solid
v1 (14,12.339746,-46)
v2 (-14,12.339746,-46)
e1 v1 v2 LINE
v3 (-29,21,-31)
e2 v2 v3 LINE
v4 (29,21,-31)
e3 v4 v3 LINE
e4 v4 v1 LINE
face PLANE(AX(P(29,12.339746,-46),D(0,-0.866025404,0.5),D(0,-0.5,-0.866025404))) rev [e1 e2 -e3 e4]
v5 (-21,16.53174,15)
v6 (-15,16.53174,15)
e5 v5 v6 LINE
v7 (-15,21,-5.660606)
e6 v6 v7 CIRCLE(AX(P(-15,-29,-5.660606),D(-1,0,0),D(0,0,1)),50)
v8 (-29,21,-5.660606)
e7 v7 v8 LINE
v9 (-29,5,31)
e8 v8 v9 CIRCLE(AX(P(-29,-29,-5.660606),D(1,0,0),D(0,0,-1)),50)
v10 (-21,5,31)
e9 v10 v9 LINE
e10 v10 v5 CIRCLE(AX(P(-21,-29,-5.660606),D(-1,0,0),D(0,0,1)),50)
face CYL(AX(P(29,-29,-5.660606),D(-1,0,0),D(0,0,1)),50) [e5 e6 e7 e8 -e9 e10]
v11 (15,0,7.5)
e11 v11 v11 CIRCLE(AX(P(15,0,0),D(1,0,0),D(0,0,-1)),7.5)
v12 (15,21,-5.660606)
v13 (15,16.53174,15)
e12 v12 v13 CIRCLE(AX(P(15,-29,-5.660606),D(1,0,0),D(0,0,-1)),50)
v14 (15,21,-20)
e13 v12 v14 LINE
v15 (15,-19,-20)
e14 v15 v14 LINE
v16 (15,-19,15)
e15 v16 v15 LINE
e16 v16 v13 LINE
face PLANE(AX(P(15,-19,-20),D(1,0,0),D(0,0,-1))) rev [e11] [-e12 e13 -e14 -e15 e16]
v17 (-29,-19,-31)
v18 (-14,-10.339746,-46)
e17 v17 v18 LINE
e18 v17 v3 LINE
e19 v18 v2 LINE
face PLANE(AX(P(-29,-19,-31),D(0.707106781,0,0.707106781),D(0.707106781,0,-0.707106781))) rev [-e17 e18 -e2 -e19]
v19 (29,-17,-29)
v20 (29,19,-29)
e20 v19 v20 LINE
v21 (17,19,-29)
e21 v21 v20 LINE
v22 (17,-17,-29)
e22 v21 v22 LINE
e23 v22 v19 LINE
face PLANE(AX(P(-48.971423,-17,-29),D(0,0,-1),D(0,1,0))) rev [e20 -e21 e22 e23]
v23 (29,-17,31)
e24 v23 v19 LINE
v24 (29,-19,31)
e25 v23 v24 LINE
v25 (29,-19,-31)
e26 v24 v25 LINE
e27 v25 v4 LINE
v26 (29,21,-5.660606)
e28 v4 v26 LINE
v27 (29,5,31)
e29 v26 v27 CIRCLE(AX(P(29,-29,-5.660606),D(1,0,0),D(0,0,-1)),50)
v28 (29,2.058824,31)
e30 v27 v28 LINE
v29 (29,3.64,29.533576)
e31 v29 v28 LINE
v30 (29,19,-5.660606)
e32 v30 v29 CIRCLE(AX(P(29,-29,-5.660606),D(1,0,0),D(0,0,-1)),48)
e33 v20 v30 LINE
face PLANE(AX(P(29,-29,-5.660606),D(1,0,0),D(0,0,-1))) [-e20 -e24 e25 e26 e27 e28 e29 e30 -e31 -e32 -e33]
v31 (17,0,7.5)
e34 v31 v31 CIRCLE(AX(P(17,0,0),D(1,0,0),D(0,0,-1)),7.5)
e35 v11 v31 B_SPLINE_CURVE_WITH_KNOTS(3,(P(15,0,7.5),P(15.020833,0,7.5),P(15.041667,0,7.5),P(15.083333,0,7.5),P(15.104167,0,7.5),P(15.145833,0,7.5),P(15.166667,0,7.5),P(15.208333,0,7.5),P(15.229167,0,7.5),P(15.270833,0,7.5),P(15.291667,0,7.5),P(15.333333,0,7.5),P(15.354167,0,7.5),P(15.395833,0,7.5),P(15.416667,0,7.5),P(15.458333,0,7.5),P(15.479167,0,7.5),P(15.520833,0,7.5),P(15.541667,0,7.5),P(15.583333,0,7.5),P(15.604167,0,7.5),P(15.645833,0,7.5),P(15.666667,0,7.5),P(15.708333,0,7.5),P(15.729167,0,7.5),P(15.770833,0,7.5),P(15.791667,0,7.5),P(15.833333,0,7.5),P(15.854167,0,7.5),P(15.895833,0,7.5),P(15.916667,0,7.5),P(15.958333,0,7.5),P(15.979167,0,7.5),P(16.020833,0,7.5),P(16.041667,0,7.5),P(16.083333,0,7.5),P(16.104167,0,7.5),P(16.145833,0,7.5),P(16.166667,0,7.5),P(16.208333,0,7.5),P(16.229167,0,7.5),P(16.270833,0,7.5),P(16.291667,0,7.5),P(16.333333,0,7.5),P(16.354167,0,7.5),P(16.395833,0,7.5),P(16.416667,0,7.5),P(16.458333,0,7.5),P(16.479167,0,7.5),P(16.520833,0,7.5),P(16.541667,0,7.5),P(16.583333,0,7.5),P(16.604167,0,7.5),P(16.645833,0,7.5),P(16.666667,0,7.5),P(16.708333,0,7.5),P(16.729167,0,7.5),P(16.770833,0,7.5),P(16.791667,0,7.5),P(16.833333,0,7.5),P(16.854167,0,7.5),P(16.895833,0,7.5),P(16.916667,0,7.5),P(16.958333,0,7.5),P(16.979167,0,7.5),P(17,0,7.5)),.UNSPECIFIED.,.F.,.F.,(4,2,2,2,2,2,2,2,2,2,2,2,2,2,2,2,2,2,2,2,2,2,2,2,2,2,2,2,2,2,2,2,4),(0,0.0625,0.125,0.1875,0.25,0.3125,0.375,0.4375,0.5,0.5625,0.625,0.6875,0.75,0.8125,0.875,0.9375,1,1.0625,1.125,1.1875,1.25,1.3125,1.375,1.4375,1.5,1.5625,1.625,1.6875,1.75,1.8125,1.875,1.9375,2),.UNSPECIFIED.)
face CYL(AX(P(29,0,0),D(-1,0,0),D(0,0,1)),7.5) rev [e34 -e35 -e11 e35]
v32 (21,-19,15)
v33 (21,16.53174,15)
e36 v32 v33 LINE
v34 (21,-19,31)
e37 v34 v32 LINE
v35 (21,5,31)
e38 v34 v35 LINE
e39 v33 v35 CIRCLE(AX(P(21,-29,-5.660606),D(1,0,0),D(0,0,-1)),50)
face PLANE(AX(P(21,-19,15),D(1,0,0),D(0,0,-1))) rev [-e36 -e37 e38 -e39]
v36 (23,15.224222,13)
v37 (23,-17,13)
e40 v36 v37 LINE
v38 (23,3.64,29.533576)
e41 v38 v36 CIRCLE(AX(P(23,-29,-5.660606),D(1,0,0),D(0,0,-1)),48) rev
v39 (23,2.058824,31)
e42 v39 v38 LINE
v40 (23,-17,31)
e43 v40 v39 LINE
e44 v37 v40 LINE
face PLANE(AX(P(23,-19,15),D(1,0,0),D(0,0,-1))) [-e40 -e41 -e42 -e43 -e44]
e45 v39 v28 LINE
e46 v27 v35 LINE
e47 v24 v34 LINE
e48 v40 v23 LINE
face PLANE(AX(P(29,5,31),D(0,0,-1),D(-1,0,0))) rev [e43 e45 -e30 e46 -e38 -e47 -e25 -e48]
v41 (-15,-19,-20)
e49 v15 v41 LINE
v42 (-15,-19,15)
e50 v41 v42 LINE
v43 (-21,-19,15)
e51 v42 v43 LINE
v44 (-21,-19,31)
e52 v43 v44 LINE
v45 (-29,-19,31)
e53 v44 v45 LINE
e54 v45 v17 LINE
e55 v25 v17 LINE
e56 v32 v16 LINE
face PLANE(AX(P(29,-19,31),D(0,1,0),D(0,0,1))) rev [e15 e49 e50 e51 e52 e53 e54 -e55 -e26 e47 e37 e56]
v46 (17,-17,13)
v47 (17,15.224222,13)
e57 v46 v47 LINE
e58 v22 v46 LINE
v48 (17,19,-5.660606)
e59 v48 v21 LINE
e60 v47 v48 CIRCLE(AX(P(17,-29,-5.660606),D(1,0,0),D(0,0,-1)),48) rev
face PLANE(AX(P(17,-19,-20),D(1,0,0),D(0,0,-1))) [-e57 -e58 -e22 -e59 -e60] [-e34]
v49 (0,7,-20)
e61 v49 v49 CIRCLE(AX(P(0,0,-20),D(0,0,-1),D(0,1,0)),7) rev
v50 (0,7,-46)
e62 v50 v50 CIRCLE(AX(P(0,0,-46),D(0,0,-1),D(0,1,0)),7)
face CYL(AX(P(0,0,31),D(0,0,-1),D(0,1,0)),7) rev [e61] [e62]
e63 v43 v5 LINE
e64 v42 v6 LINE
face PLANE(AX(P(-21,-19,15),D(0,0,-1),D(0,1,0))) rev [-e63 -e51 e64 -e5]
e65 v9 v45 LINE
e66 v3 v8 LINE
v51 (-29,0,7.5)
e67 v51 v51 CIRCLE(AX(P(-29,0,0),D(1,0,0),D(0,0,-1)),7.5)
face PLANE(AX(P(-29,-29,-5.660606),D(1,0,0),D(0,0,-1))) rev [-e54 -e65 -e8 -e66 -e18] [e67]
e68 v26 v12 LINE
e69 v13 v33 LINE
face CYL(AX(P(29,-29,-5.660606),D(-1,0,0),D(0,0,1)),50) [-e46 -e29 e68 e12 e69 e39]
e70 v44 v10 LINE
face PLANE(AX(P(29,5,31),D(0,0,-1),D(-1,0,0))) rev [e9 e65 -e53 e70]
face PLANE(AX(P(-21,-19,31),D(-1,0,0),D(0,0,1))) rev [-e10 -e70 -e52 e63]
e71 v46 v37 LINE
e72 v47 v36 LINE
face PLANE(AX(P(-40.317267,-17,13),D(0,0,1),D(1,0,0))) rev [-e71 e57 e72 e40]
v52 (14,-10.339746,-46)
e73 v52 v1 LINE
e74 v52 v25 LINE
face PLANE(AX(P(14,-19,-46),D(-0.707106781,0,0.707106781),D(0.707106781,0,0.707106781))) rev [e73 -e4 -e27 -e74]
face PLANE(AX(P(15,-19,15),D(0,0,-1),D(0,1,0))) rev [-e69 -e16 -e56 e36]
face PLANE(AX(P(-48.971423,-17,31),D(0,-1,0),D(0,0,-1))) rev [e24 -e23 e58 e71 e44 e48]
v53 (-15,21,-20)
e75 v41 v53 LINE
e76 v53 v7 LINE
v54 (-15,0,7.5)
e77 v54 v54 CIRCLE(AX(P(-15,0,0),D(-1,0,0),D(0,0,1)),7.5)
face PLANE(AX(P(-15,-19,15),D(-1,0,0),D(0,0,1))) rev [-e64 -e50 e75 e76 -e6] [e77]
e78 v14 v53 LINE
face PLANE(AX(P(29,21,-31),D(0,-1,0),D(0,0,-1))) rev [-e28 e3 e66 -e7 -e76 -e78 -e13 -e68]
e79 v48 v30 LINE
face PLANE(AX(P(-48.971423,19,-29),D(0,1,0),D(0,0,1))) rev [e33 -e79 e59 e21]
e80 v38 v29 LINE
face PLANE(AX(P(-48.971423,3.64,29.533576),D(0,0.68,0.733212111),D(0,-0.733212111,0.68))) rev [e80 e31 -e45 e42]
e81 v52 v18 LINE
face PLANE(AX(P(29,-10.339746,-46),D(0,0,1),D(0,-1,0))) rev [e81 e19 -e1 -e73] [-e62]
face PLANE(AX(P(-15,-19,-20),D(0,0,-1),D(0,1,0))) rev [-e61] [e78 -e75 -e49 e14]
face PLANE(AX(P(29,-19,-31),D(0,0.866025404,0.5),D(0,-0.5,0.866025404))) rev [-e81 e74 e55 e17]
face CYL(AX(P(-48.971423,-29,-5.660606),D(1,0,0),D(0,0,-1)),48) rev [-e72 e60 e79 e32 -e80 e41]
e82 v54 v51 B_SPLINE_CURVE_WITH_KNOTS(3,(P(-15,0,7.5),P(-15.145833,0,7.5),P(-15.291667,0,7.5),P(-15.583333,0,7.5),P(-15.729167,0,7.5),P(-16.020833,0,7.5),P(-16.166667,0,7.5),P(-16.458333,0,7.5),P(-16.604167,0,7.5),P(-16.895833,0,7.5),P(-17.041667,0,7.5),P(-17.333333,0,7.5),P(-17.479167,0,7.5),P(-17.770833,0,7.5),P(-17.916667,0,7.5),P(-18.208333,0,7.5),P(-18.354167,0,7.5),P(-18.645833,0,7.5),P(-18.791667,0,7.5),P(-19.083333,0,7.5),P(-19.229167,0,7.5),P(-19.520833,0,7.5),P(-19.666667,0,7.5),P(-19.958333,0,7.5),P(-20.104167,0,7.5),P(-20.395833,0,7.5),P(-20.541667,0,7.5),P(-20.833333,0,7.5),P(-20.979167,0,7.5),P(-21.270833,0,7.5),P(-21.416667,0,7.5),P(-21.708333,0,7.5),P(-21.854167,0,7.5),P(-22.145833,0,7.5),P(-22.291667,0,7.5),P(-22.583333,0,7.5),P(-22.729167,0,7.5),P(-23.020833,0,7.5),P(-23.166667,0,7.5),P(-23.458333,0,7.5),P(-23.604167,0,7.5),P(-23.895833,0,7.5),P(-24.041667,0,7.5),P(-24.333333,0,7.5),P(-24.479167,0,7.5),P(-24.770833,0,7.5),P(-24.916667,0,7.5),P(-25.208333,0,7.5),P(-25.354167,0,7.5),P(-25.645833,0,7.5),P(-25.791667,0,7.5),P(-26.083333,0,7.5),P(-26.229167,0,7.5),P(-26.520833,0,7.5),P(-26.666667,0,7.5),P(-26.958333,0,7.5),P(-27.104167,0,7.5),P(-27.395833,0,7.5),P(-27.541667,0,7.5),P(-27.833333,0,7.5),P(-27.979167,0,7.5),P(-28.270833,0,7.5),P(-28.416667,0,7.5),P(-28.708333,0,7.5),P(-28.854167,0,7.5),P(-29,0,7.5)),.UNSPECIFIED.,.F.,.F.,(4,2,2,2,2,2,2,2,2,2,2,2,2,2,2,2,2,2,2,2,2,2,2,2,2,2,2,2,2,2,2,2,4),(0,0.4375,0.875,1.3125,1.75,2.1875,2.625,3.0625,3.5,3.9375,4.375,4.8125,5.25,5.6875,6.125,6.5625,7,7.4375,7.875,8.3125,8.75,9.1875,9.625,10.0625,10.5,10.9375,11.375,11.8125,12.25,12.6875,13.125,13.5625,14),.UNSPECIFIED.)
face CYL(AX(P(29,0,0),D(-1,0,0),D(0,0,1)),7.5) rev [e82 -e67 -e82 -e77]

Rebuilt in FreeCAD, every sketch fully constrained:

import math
import FreeCAD as App
import Part
import Sketcher
Q = App.Units.Quantity


def add_polygon(sketch, points):
    """Adds a closed chain of lines whose ends are joined by coincident constraints."""
    first, n = sketch.GeometryCount, len(points)
    for a, b in zip(points, points[1:] + points[:1]):
        sketch.addGeometry(Part.LineSegment(App.Vector(*a, 0), App.Vector(*b, 0)), False)
    for i in range(n):
        sketch.addConstraint(Sketcher.Constraint("Coincident", first + i, 2, first + (i + 1) % n, 1))

doc = App.newDocument("Part")
body = doc.addObject("PartDesign::Body", "Body")

sketch1 = doc.addObject("Sketcher::SketchObject", "Sketch")
body.addObject(sketch1)
sketch1.AttachmentSupport = (doc.YZ_Plane, [""])
sketch1.MapMode = "FlatFace"
sketch1.addGeometry([
    Part.LineSegment(App.Vector(5, 31, 0), App.Vector(-19, 31, 0)),
    Part.LineSegment(App.Vector(-19, 31, 0), App.Vector(-19, -31, 0)),
    Part.LineSegment(App.Vector(-19, -31, 0), App.Vector(-10.339746, -46, 0)),
    Part.LineSegment(App.Vector(-10.339746, -46, 0), App.Vector(12.339746, -46, 0)),
    Part.LineSegment(App.Vector(12.339746, -46, 0), App.Vector(21, -31, 0)),
    Part.LineSegment(App.Vector(21, -31, 0), App.Vector(21, -5.660606, 0)),
    Part.ArcOfCircle(Part.Circle(App.Vector(-29, -5.660606, 0), App.Vector(0, 0, 1), 50), math.radians(0), math.radians(47.156357)),
    Part.Circle(App.Vector(0, 0, 0), App.Vector(0, 0, 1), 7.5),
], False)
sketch1.addConstraint([
    Sketcher.Constraint("Coincident", 0, 2, 1, 1),
    Sketcher.Constraint("Coincident", 1, 2, 2, 1),
    Sketcher.Constraint("Coincident", 2, 2, 3, 1),
    Sketcher.Constraint("Coincident", 3, 2, 4, 1),
    Sketcher.Constraint("Coincident", 4, 2, 5, 1),
    Sketcher.Constraint("Tangent", 5, 2, 6, 1),
    Sketcher.Constraint("Coincident", 6, 2, 0, 1),
    Sketcher.Constraint("Horizontal", 0),
    Sketcher.Constraint("Vertical", 1),
    Sketcher.Constraint("Horizontal", 3),
    Sketcher.Constraint("Vertical", 5),
    Sketcher.Constraint("Coincident", 7, 3, -1, 1),
    Sketcher.Constraint("Horizontal", 1, 2, 4, 2),
    Sketcher.Constraint("Equal", 2, 4),
    Sketcher.Constraint("Diameter", 7, Q("15 mm")),
    Sketcher.Constraint("Radius", 6, Q("50 mm")),
    Sketcher.Constraint("DistanceX", 0, 2, 0, 1, Q("24 mm")),
    Sketcher.Constraint("DistanceY", 1, 2, 1, 1, Q("62 mm")),
    Sketcher.Constraint("Angle", 2, Q("-60 deg")),
    Sketcher.Constraint("DistanceX", 6, 3, -1, 1, Q("29 mm")),
    Sketcher.Constraint("DistanceX", 0, 2, -1, 1, Q("19 mm")),
    Sketcher.Constraint("DistanceY", -1, 1, 0, 2, Q("31 mm")),
    Sketcher.Constraint("DistanceY", 2, 2, -1, 1, Q("46 mm")),
])
pad1 = doc.addObject("PartDesign::Pad", "Pad")
body.addObject(pad1)
pad1.Profile = sketch1
pad1.Length = 58
pad1.Midplane = True

sketch2 = doc.addObject("Sketcher::SketchObject", "Sketch001")
body.addObject(sketch2)
sketch2.AttachmentSupport = (doc.XZ_Plane, [""])
sketch2.MapMode = "FlatFace"
sketch2.AttachmentOffset = App.Placement(App.Vector(0, 0, -21), App.Rotation())
add_polygon(sketch2, [(-29, -31), (-14, -46), (-29, -46)])
add_polygon(sketch2, [(29, -31), (29, -46), (14, -46)])
sketch2.addConstraint([
    Sketcher.Constraint("Horizontal", 1),
    Sketcher.Constraint("Vertical", 2),
    Sketcher.Constraint("Vertical", 3),
    Sketcher.Constraint("Horizontal", 4),
    Sketcher.Constraint("Symmetric", 1, 2, 3, 2, -2),
    Sketcher.Constraint("Perpendicular", 0, 5),
    Sketcher.Constraint("Horizontal", 2, 2, 5, 2),
    Sketcher.Constraint("Equal", 1, 4),
    Sketcher.Constraint("DistanceX", 1, 2, 1, 1, Q("15 mm")),
    Sketcher.Constraint("DistanceX", 0, 2, -1, 1, Q("14 mm")),
    Sketcher.Constraint("DistanceY", 0, 2, -1, 1, Q("46 mm")),
])
pocket1 = doc.addObject("PartDesign::Pocket", "Pocket")
body.addObject(pocket1)
pocket1.Profile = sketch2
pocket1.Type = "ThroughAll"
pocket1.Reversed = True

sketch3 = doc.addObject("Sketcher::SketchObject", "Sketch002")
body.addObject(sketch3)
sketch3.AttachmentSupport = (doc.XY_Plane, [""])
sketch3.MapMode = "FlatFace"
sketch3.AttachmentOffset = App.Placement(App.Vector(0, 0, -46), App.Rotation())
sketch3.addGeometry(Part.Circle(App.Vector(0, 0, 0), App.Vector(0, 0, 1), 7), False)
sketch3.addConstraint([
    Sketcher.Constraint("Coincident", 0, 3, -1, 1),
    Sketcher.Constraint("Diameter", 0, Q("14 mm")),
])
pocket2 = doc.addObject("PartDesign::Pocket", "Pocket001")
body.addObject(pocket2)
pocket2.Profile = sketch3
pocket2.Type = "ThroughAll"
pocket2.Reversed = True

sketch4 = doc.addObject("Sketcher::SketchObject", "Sketch003")
body.addObject(sketch4)
sketch4.AttachmentSupport = (doc.XZ_Plane, [""])
sketch4.MapMode = "FlatFace"
sketch4.AttachmentOffset = App.Placement(App.Vector(0, 0, -21), App.Rotation())
add_polygon(sketch4, [(-21, 31), (21, 31), (21, 15), (15, 15), (15, -20), (-15, -20), (-15, 15), (-21, 15)])
sketch4.addConstraint([
    Sketcher.Constraint("Horizontal", 0),
    Sketcher.Constraint("Vertical", 1),
    Sketcher.Constraint("Horizontal", 2),
    Sketcher.Constraint("Vertical", 3),
    Sketcher.Constraint("Horizontal", 4),
    Sketcher.Constraint("Vertical", 5),
    Sketcher.Constraint("Horizontal", 6),
    Sketcher.Constraint("Vertical", 7),
    Sketcher.Constraint("Symmetric", 2, 2, 5, 2, -2),
    Sketcher.Constraint("Equal", 2, 6),
    Sketcher.Constraint("DistanceX", 0, 1, 0, 2, Q("42 mm")),
    Sketcher.Constraint("DistanceX", 2, 2, 2, 1, Q("6 mm")),
    Sketcher.Constraint("DistanceY", 1, 2, 1, 1, Q("16 mm")),
    Sketcher.Constraint("DistanceY", 3, 2, 3, 1, Q("35 mm")),
    Sketcher.Constraint("DistanceY", -1, 1, 0, 2, Q("31 mm")),
])
pocket3 = doc.addObject("PartDesign::Pocket", "Pocket002")
body.addObject(pocket3)
pocket3.Profile = sketch4
pocket3.Type = "ThroughAll"
pocket3.Reversed = True

sketch5 = doc.addObject("Sketcher::SketchObject", "Sketch004")
body.addObject(sketch5)
sketch5.AttachmentSupport = (doc.YZ_Plane, [""])
sketch5.MapMode = "FlatFace"
sketch5.AttachmentOffset = App.Placement(App.Vector(0, 0, 29), App.Rotation())
sketch5.addGeometry([
    Part.LineSegment(App.Vector(2.058824, 31, 0), App.Vector(-17, 31, 0)),
    Part.LineSegment(App.Vector(-17, 31, 0), App.Vector(-17, -29, 0)),
    Part.LineSegment(App.Vector(-17, -29, 0), App.Vector(19, -29, 0)),
    Part.LineSegment(App.Vector(19, -29, 0), App.Vector(19, -5.660606, 0)),
    Part.ArcOfCircle(Part.Circle(App.Vector(-29, -5.660606, 0), App.Vector(0, 0, 1), 48), math.radians(0), math.radians(47.156357)),
    Part.LineSegment(App.Vector(3.64, 29.533576, 0), App.Vector(2.058824, 31, 0)),
], False)
sketch5.addConstraint([
    Sketcher.Constraint("Coincident", 0, 2, 1, 1),
    Sketcher.Constraint("Coincident", 1, 2, 2, 1),
    Sketcher.Constraint("Coincident", 2, 2, 3, 1),
    Sketcher.Constraint("Tangent", 3, 2, 4, 1),
    Sketcher.Constraint("Tangent", 4, 2, 5, 1),
    Sketcher.Constraint("Coincident", 5, 2, 0, 1),
    Sketcher.Constraint("Horizontal", 0),
    Sketcher.Constraint("Vertical", 1),
    Sketcher.Constraint("Horizontal", 2),
    Sketcher.Constraint("Vertical", 3),
    Sketcher.Constraint("Radius", 4, Q("48 mm")),
    Sketcher.Constraint("DistanceX", 2, 1, 2, 2, Q("36 mm")),
    Sketcher.Constraint("DistanceY", 1, 2, 1, 1, Q("60 mm")),
    Sketcher.Constraint("DistanceX", 4, 3, -1, 1, Q("29 mm")),
    Sketcher.Constraint("DistanceY", -1, 1, 0, 2, Q("31 mm")),
    Sketcher.Constraint("DistanceX", -1, 1, 4, 2, Q("3.64 mm")),
    Sketcher.Constraint("DistanceX", 0, 2, 0, 1, Q("19.058824 mm")),
])
pocket4 = doc.addObject("PartDesign::Pocket", "Pocket003")
body.addObject(pocket4)
pocket4.Profile = sketch5
pocket4.Length = 6

sketch6 = doc.addObject("Sketcher::SketchObject", "Sketch005")
body.addObject(sketch6)
sketch6.AttachmentSupport = (doc.YZ_Plane, [""])
sketch6.MapMode = "FlatFace"
sketch6.AttachmentOffset = App.Placement(App.Vector(0, 0, 23), App.Rotation())
sketch6.addGeometry([
    Part.LineSegment(App.Vector(-17, 13, 0), App.Vector(-17, -29, 0)),
    Part.LineSegment(App.Vector(-17, -29, 0), App.Vector(19, -29, 0)),
    Part.LineSegment(App.Vector(19, -29, 0), App.Vector(19, -5.660606, 0)),
    Part.ArcOfCircle(Part.Circle(App.Vector(-29, -5.660606, 0), App.Vector(0, 0, 1), 48), math.radians(0), math.radians(22.877528)),
    Part.LineSegment(App.Vector(15.224222, 13, 0), App.Vector(-17, 13, 0)),
], False)
sketch6.addConstraint([
    Sketcher.Constraint("Coincident", 0, 2, 1, 1),
    Sketcher.Constraint("Coincident", 1, 2, 2, 1),
    Sketcher.Constraint("Tangent", 2, 2, 3, 1),
    Sketcher.Constraint("Coincident", 3, 2, 4, 1),
    Sketcher.Constraint("Coincident", 4, 2, 0, 1),
    Sketcher.Constraint("Vertical", 0),
    Sketcher.Constraint("Horizontal", 1),
    Sketcher.Constraint("Vertical", 2),
    Sketcher.Constraint("Horizontal", 4),
    Sketcher.Constraint("Radius", 3, Q("48 mm")),
    Sketcher.Constraint("DistanceX", 1, 1, 1, 2, Q("36 mm")),
    Sketcher.Constraint("DistanceY", 0, 2, 0, 1, Q("42 mm")),
    Sketcher.Constraint("DistanceX", 3, 3, -1, 1, Q("29 mm")),
    Sketcher.Constraint("DistanceY", 0, 2, -1, 1, Q("29 mm")),
    Sketcher.Constraint("DistanceX", 4, 2, 4, 1, Q("32.224222 mm")),
])
pocket5 = doc.addObject("PartDesign::Pocket", "Pocket004")
body.addObject(pocket5)
pocket5.Profile = sketch6
pocket5.Length = 6

doc.recompute()
